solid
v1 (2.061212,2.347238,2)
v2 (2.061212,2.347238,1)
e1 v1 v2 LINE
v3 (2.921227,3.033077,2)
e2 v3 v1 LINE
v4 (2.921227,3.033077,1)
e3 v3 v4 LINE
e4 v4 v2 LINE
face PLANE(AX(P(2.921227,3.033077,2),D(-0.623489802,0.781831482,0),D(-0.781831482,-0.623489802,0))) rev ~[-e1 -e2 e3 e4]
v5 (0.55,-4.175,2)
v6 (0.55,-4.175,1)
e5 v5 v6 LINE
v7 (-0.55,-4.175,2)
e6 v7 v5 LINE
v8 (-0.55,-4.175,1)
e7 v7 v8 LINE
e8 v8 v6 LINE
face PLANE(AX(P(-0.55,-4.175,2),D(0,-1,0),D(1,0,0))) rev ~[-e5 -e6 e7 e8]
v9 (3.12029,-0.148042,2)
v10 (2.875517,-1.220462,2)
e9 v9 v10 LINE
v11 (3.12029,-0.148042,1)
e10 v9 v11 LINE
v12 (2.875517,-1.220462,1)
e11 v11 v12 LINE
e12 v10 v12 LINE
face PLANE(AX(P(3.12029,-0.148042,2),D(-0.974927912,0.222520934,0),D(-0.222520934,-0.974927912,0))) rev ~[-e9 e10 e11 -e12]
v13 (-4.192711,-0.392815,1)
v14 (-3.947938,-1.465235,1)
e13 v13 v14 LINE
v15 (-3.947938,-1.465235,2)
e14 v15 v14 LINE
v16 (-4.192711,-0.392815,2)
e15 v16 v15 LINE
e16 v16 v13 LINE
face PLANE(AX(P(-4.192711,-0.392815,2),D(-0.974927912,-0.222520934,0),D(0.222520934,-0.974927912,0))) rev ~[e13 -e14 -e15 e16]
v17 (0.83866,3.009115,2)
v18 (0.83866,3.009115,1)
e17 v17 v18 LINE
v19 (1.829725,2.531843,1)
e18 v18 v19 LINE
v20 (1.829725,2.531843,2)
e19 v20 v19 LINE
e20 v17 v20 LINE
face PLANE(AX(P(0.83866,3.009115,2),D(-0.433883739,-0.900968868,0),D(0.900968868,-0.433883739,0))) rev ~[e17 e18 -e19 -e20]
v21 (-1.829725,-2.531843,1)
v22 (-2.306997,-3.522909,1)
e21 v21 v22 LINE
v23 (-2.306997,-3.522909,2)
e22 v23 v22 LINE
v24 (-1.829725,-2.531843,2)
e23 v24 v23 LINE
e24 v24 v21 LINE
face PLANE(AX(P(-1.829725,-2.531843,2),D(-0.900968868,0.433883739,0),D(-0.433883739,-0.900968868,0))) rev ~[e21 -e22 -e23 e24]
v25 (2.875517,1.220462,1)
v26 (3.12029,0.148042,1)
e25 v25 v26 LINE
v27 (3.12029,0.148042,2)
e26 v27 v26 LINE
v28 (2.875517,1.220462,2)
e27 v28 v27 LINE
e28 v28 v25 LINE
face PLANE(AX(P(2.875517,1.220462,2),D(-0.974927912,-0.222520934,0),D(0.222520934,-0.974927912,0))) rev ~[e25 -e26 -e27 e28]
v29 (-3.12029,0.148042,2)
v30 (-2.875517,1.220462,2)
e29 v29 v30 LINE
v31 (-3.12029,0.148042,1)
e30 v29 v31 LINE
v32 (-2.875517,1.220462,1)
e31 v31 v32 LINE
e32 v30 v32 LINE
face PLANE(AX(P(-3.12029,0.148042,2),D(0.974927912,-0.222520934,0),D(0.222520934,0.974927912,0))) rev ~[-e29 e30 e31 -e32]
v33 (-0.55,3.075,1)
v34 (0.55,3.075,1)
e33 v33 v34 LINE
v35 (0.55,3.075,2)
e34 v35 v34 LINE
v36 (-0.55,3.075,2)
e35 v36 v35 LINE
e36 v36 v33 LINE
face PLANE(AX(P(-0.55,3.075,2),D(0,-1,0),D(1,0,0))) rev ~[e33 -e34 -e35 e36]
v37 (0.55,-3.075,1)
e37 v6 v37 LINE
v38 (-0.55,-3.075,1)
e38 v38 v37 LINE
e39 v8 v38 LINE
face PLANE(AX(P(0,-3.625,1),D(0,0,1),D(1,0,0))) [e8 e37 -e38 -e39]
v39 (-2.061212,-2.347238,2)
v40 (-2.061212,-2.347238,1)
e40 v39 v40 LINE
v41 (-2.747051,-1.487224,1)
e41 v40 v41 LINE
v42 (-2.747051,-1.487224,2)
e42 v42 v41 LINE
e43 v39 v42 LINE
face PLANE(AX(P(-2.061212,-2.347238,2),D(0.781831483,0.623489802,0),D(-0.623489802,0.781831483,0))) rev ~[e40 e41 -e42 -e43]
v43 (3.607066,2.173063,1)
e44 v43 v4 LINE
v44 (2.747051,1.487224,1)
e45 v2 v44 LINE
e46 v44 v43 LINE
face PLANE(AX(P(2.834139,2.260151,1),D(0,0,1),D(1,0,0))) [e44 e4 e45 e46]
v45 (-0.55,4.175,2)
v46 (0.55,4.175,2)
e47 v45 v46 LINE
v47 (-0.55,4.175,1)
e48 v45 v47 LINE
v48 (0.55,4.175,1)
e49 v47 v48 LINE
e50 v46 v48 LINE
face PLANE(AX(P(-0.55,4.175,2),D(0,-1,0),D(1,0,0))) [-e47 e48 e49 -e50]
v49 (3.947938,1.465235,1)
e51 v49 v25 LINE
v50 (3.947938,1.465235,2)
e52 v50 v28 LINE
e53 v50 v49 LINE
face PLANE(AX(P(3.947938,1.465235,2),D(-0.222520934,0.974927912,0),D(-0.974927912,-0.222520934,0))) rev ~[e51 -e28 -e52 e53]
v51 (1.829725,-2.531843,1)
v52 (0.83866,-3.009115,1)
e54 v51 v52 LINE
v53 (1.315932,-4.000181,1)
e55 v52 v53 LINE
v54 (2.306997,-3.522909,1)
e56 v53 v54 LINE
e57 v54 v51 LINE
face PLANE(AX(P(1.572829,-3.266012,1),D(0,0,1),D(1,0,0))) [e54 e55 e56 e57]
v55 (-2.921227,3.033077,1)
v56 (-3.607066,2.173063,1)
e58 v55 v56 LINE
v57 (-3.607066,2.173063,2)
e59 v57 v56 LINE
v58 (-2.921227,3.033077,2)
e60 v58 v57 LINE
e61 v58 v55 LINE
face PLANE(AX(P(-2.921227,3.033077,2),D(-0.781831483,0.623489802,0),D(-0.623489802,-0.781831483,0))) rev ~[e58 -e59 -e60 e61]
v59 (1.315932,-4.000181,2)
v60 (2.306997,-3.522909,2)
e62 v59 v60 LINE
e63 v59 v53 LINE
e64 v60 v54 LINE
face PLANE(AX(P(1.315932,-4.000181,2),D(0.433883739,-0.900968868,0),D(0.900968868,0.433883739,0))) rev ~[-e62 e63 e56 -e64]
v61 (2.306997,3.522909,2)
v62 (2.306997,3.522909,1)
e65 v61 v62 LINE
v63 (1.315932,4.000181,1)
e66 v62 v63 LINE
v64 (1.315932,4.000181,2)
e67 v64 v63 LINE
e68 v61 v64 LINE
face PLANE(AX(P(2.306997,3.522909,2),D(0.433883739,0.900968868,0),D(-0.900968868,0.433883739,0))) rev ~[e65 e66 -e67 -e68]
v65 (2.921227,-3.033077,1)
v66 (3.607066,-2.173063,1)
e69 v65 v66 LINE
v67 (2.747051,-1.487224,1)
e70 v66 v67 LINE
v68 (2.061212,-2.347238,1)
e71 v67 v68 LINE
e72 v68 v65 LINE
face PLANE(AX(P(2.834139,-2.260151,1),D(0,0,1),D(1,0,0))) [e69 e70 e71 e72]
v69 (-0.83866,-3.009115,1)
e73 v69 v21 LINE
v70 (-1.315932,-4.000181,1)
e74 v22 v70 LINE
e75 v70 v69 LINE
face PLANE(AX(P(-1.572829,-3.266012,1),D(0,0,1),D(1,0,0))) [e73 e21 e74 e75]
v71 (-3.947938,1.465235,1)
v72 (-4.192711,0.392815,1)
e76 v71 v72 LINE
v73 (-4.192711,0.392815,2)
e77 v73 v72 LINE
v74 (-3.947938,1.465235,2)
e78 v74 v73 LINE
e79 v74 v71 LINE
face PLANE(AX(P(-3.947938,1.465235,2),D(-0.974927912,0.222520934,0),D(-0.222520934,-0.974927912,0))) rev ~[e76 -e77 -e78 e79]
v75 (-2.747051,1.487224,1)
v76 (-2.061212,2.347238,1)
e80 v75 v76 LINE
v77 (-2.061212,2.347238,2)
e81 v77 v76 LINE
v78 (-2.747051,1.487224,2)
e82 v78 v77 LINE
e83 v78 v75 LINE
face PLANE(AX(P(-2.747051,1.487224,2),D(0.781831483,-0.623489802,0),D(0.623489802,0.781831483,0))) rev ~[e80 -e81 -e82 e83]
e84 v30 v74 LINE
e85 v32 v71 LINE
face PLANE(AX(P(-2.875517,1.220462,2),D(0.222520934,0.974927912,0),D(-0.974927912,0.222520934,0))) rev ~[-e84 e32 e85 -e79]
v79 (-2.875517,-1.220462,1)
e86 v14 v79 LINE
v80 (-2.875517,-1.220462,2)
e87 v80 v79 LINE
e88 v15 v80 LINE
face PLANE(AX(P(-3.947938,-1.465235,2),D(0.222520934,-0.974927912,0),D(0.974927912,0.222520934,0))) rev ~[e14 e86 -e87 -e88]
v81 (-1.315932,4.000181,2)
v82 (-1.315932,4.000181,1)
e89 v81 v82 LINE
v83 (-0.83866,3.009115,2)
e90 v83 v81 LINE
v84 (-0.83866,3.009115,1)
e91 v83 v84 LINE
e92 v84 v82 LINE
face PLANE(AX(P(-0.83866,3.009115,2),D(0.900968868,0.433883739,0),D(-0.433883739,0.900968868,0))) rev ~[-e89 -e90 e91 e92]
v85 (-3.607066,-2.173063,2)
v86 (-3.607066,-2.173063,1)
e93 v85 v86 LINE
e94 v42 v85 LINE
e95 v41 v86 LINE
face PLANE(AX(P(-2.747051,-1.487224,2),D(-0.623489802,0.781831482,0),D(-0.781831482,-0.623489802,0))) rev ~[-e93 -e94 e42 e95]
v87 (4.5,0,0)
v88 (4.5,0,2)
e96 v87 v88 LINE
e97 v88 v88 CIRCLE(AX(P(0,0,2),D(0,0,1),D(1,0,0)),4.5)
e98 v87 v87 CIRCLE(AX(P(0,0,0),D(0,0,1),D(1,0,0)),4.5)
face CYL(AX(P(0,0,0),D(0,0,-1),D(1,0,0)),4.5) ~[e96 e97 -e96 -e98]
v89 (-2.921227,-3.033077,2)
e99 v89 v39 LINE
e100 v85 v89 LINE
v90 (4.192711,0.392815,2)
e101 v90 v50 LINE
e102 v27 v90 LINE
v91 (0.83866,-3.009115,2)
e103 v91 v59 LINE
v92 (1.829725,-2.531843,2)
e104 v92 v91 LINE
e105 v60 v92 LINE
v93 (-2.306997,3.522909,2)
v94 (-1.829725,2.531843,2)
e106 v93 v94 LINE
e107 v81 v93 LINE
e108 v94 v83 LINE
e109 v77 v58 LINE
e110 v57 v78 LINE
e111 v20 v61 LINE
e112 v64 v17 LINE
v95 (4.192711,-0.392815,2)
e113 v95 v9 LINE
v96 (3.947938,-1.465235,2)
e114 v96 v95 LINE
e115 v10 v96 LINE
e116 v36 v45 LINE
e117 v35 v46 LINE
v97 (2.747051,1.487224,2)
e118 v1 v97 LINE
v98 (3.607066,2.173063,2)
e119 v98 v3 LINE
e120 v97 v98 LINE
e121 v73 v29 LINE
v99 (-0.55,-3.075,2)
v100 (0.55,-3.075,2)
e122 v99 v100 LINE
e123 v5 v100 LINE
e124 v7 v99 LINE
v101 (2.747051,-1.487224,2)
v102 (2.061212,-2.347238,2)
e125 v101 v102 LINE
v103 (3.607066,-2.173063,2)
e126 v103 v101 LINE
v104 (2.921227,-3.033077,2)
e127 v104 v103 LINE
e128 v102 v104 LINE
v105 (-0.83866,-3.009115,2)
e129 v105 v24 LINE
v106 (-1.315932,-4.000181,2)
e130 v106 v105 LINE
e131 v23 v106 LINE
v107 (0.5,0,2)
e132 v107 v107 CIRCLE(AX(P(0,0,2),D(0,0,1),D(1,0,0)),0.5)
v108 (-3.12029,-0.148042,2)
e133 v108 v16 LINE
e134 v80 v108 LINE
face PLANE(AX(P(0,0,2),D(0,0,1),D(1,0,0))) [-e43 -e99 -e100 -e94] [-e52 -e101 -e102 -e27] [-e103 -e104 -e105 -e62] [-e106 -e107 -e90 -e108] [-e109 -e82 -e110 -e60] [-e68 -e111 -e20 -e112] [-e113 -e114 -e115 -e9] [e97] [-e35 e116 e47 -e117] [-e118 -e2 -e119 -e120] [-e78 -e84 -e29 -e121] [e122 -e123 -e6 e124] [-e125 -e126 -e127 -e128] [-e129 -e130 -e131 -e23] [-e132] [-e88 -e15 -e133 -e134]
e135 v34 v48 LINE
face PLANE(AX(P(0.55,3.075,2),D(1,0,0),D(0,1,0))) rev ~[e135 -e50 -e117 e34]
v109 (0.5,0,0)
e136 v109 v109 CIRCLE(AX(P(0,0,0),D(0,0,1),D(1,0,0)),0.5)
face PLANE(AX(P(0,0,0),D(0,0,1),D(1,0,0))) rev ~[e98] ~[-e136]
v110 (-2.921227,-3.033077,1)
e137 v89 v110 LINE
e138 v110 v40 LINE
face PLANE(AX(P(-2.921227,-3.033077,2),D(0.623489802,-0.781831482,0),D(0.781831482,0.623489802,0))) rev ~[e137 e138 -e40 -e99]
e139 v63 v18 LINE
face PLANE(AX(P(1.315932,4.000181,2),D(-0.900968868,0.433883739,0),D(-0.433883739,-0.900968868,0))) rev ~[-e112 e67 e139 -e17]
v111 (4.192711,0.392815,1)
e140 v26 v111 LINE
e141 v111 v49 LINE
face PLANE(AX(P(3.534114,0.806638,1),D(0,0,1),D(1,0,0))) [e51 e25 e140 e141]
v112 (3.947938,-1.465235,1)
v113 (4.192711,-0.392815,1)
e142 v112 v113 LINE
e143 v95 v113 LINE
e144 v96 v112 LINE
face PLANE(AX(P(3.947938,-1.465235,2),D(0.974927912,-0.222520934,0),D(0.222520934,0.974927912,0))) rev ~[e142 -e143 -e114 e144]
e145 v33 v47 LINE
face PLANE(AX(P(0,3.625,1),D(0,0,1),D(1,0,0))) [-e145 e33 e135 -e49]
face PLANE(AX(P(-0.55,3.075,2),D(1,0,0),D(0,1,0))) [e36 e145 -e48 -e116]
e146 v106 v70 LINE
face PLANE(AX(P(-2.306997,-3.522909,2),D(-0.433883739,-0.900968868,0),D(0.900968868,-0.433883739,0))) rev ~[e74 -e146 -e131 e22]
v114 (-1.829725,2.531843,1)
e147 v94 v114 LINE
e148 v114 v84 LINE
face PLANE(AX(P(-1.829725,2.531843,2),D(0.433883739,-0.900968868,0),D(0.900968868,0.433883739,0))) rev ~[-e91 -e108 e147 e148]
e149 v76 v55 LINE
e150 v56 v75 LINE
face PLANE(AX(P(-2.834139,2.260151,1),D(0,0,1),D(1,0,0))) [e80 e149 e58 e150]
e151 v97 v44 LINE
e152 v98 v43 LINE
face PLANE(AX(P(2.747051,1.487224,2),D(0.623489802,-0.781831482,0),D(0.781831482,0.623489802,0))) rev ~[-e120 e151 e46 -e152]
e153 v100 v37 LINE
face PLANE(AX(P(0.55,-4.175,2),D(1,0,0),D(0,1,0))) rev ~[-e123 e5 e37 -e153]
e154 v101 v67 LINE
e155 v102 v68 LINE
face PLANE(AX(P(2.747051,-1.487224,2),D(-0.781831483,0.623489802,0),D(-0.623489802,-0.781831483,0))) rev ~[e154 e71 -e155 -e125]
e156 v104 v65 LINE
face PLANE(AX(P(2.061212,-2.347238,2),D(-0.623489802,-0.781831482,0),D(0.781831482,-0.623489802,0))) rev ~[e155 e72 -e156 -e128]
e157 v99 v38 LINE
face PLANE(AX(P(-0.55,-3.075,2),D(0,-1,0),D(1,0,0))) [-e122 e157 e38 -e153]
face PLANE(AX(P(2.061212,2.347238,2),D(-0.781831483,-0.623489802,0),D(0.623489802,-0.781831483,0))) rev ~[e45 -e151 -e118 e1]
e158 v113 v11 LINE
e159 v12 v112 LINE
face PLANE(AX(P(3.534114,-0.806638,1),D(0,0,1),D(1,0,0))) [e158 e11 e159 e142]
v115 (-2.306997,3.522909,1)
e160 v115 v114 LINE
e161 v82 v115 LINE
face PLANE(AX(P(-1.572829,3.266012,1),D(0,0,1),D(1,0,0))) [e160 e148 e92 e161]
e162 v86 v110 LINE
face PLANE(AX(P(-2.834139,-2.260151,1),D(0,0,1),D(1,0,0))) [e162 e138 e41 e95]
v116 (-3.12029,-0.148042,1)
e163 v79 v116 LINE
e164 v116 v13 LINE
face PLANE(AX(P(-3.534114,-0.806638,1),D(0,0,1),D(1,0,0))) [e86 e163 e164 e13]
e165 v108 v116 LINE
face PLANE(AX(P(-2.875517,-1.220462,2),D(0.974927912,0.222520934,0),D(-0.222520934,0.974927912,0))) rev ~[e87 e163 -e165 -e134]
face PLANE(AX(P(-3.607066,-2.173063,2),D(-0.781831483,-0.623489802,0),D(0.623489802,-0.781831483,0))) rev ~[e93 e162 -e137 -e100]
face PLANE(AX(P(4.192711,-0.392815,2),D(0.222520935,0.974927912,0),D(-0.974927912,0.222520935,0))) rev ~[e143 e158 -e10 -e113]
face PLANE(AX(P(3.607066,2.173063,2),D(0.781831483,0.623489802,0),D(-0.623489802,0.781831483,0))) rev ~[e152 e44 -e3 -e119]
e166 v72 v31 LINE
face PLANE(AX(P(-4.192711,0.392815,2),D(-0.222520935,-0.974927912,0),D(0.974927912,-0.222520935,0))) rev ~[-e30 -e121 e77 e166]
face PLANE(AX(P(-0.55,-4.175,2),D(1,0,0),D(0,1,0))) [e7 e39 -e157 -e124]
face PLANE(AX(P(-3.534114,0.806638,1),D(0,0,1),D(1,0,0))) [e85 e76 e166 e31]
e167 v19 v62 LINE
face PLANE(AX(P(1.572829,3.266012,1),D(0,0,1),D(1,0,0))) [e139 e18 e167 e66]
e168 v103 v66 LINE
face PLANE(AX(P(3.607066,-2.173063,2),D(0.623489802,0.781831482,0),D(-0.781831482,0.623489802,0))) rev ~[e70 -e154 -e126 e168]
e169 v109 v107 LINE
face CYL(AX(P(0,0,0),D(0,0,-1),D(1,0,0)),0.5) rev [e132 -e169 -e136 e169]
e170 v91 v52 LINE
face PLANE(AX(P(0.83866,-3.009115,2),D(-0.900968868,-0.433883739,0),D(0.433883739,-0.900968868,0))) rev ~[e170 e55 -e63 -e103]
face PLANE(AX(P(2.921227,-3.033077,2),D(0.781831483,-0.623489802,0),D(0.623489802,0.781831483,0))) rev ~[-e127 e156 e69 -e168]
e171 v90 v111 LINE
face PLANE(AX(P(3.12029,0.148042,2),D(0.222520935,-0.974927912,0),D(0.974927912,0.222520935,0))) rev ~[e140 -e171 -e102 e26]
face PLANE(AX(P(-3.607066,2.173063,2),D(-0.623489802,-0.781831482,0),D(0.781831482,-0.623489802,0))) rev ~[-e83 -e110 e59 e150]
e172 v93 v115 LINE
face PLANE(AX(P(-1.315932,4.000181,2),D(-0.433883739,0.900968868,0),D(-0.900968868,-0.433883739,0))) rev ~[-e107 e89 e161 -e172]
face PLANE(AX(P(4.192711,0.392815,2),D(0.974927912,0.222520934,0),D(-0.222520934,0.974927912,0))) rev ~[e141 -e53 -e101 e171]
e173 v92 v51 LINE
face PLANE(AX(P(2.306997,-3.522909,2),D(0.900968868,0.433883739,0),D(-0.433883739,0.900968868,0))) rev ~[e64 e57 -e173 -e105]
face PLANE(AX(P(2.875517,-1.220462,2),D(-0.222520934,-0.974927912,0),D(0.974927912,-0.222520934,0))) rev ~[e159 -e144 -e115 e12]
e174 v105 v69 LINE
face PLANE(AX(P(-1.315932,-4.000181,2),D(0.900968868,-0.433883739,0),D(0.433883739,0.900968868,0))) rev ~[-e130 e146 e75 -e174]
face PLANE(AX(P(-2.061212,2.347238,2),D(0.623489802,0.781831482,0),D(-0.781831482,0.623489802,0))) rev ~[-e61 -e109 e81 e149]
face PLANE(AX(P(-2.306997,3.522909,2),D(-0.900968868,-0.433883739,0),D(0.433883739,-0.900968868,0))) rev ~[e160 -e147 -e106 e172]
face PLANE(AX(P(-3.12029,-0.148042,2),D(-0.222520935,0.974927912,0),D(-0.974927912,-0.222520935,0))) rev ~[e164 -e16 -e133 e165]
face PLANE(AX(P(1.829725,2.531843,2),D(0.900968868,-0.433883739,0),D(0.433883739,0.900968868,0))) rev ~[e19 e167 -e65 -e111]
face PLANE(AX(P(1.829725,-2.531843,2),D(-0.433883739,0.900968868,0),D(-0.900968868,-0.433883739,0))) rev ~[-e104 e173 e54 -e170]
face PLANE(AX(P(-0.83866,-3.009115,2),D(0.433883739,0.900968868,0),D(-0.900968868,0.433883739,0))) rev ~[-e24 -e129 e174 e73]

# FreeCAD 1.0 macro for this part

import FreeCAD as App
import Part
import Sketcher

V = App.Vector


def add_polygon(sketch, points):
    """Adds a closed chain of lines whose ends are joined by coincident constraints."""
    first, n = sketch.GeometryCount, len(points)
    for a, b in zip(points, points[1:] + points[:1]):
        sketch.addGeometry(Part.LineSegment(App.Vector(*a, 0), App.Vector(*b, 0)), False)
    for i in range(n):
        sketch.addConstraint(Sketcher.Constraint("Coincident", first + i, 2, first + (i + 1) % n, 1))

doc = App.newDocument("Part")
body = doc.addObject("PartDesign::Body", "Body")

sketch1 = doc.addObject("Sketcher::SketchObject", "Sketch")
body.addObject(sketch1)
sketch1.AttachmentSupport = (doc.XY_Plane, [""])
sketch1.MapMode = "FlatFace"
sketch1.addGeometry([
    Part.Circle(V(0, 0, 0), V(0, 0, 1), 4.5),
    Part.Circle(V(0, 0, 0), V(0, 0, 1), 0.5),
], False)
sketch1.addConstraint([
    Sketcher.Constraint("Coincident", 0, 3, -1, 1),
    Sketcher.Constraint("Coincident", 1, 3, -1, 1),
    Sketcher.Constraint("Diameter", 0, 9.0),
    Sketcher.Constraint("Diameter", 1, 1.0),
])
pad1 = doc.addObject("PartDesign::Pad", "Pad")
body.addObject(pad1)
pad1.Profile = sketch1
pad1.Length = 2

sketch2 = doc.addObject("Sketcher::SketchObject", "Sketch001")
body.addObject(sketch2)
sketch2.AttachmentSupport = (doc.XY_Plane, [""])
sketch2.MapMode = "FlatFace"
sketch2.AttachmentOffset = App.Placement(V(0, 0, 2), App.Rotation())
add_polygon(sketch2, [(1.315932, 4.000181), (0.83866, 3.009115), (1.829725, 2.531843), (2.306997, 3.522909)])
add_polygon(sketch2, [(-0.55, 4.175), (-0.55, 3.075), (0.55, 3.075), (0.55, 4.175)])
add_polygon(sketch2, [(2.921227, 3.033077), (2.061212, 2.347238), (2.747051, 1.487224), (3.607066, 2.173063)])
add_polygon(sketch2, [(3.947938, 1.465235), (2.875517, 1.220462), (3.12029, 0.148042), (4.192711, 0.392815)])
add_polygon(sketch2, [(4.192711, -0.392815), (3.12029, -0.148042), (2.875517, -1.220462), (3.947938, -1.465235)])
add_polygon(sketch2, [(3.607066, -2.173063), (2.747051, -1.487224), (2.061212, -2.347238), (2.921227, -3.033077)])
add_polygon(sketch2, [(2.306997, -3.522909), (1.829725, -2.531843), (0.83866, -3.009115), (1.315932, -4.000181)])
add_polygon(sketch2, [(-0.55, -3.075), (-0.55, -4.175), (0.55, -4.175), (0.55, -3.075)])
add_polygon(sketch2, [(-1.315932, -4.000181), (-0.83866, -3.009115), (-1.829725, -2.531843), (-2.306997, -3.522909)])
add_polygon(sketch2, [(-2.921227, -3.033077), (-2.061212, -2.347238), (-2.747051, -1.487224), (-3.607066, -2.173063)])
add_polygon(sketch2, [(-3.947938, -1.465235), (-2.875517, -1.220462), (-3.12029, -0.148042), (-4.192711, -0.392815)])
add_polygon(sketch2, [(-4.192711, 0.392815), (-3.12029, 0.148042), (-2.875517, 1.220462), (-3.947938, 1.465235)])
add_polygon(sketch2, [(-3.607066, 2.173063), (-2.747051, 1.487224), (-2.061212, 2.347238), (-2.921227, 3.033077)])
add_polygon(sketch2, [(-2.306997, 3.522909), (-1.829725, 2.531843), (-0.83866, 3.009115), (-1.315932, 4.000181)])
sketch2.addConstraint([
    Sketcher.Constraint("Vertical", 4),
    Sketcher.Constraint("Horizontal", 5),
    Sketcher.Constraint("Vertical", 6),
    Sketcher.Constraint("Horizontal", 7),
    Sketcher.Constraint("Vertical", 28),
    Sketcher.Constraint("Horizontal", 29),
    Sketcher.Constraint("Vertical", 30),
    Sketcher.Constraint("Horizontal", 31),
    Sketcher.Constraint("Symmetric", 6, 2, 28, 2, -1, 1),
    Sketcher.Constraint("Symmetric", 4, 2, 30, 2, -1, 1),
    Sketcher.Constraint("Symmetric", 0, 2, 32, 2, -1, 1),
    Sketcher.Constraint("Symmetric", 1, 2, 33, 2, -1, 1),
    Sketcher.Constraint("Symmetric", 2, 2, 34, 2, -1, 1),
    Sketcher.Constraint("Symmetric", 3, 2, 35, 2, -1, 1),
    Sketcher.Constraint("Symmetric", 8, 2, 36, 2, -1, 1),
    Sketcher.Constraint("Symmetric", 9, 2, 37, 2, -1, 1),
    Sketcher.Constraint("Symmetric", 10, 2, 38, 2, -1, 1),
    Sketcher.Constraint("Symmetric", 11, 2, 39, 2, -1, 1),
    Sketcher.Constraint("Symmetric", 12, 2, 40, 2, -1, 1),
    Sketcher.Constraint("Symmetric", 13, 2, 41, 2, -1, 1),
    Sketcher.Constraint("Symmetric", 14, 2, 42, 2, -1, 1),
    Sketcher.Constraint("Symmetric", 15, 2, 43, 2, -1, 1),
    Sketcher.Constraint("Symmetric", 16, 2, 44, 2, -1, 1),
    Sketcher.Constraint("Symmetric", 17, 2, 45, 2, -1, 1),
    Sketcher.Constraint("Symmetric", 18, 2, 46, 2, -1, 1),
    Sketcher.Constraint("Symmetric", 19, 2, 47, 2, -1, 1),
    Sketcher.Constraint("Symmetric", 20, 2, 48, 2, -1, 1),
    Sketcher.Constraint("Symmetric", 21, 2, 49, 2, -1, 1),
    Sketcher.Constraint("Symmetric", 22, 2, 50, 2, -1, 1),
    Sketcher.Constraint("Symmetric", 23, 2, 51, 2, -1, 1),
    Sketcher.Constraint("Symmetric", 24, 2, 52, 2, -1, 1),
    Sketcher.Constraint("Symmetric", 25, 2, 53, 2, -1, 1),
    Sketcher.Constraint("Symmetric", 26, 2, 54, 2, -1, 1),
    Sketcher.Constraint("Symmetric", 27, 2, 55, 2, -1, 1),
    Sketcher.Constraint("Symmetric", 25, 2, 32, 2, -2),
    Sketcher.Constraint("Symmetric", 24, 2, 33, 2, -2),
    Sketcher.Constraint("Symmetric", 27, 2, 34, 2, -2),
    Sketcher.Constraint("Symmetric", 26, 2, 35, 2, -2),
    Sketcher.Constraint("Symmetric", 21, 2, 36, 2, -2),
    Sketcher.Constraint("Symmetric", 20, 2, 37, 2, -2),
    Sketcher.Constraint("Symmetric", 23, 2, 38, 2, -2),
    Sketcher.Constraint("Symmetric", 22, 2, 39, 2, -2),
    Sketcher.Constraint("Symmetric", 17, 2, 40, 2, -2),
    Sketcher.Constraint("Symmetric", 16, 2, 41, 2, -2),
    Sketcher.Constraint("Symmetric", 19, 2, 42, 2, -2),
    Sketcher.Constraint("Symmetric", 18, 2, 43, 2, -2),
    Sketcher.Constraint("Perpendicular", 0, 1),
    Sketcher.Constraint("Perpendicular", 1, 2),
    Sketcher.Constraint("Perpendicular", 2, 3),
    Sketcher.Constraint("Perpendicular", 8, 9),
    Sketcher.Constraint("Perpendicular", 9, 10),
    Sketcher.Constraint("Perpendicular", 10, 11),
    Sketcher.Constraint("Perpendicular", 12, 13),
    Sketcher.Constraint("Perpendicular", 13, 14),
    Sketcher.Constraint("Perpendicular", 14, 15),
    Sketcher.Constraint("Vertical", 7, 2, 28, 2),
    Sketcher.Constraint("Equal", 31, 4),
    Sketcher.Constraint("Equal", 0, 1),
    Sketcher.Constraint("Equal", 3, 8),
    Sketcher.Constraint("Equal", 8, 9),
    Sketcher.Constraint("Equal", 11, 12),
    Sketcher.Constraint("Equal", 12, 13),
    Sketcher.Constraint("DistanceX", 5, 1, 5, 2, 1.1),
    Sketcher.Constraint("Distance", 0, 1.1),
    Sketcher.Constraint("DistanceY", -1, 1, 4, 2, 3.075),
    Sketcher.Constraint("DistanceX", 1, 2, 11, 2, 1.091502),
    Sketcher.Constraint("DistanceY", 12, 2, 10, 2, 0.9526),
    Sketcher.Constraint("DistanceY", 13, 2, 1, 2, 2.383802),
    Sketcher.Constraint("DistanceX", 8, 2, 14, 2, 2.131498),
    Sketcher.Constraint("DistanceX", -1, 1, 0, 2, 0.83866),
    Sketcher.Constraint("DistanceY", -1, 1, 2, 2, 3.522909),
    Sketcher.Constraint("DistanceX", -1, 1, 3, 2, 1.315932),
    Sketcher.Constraint("DistanceY", -1, 1, 8, 2, 2.347238),
    Sketcher.Constraint("DistanceX", -1, 1, 9, 2, 2.747051),
])
pocket1 = doc.addObject("PartDesign::Pocket", "Pocket")
body.addObject(pocket1)
pocket1.Profile = sketch2
pocket1.Length = 1

doc.recompute()
